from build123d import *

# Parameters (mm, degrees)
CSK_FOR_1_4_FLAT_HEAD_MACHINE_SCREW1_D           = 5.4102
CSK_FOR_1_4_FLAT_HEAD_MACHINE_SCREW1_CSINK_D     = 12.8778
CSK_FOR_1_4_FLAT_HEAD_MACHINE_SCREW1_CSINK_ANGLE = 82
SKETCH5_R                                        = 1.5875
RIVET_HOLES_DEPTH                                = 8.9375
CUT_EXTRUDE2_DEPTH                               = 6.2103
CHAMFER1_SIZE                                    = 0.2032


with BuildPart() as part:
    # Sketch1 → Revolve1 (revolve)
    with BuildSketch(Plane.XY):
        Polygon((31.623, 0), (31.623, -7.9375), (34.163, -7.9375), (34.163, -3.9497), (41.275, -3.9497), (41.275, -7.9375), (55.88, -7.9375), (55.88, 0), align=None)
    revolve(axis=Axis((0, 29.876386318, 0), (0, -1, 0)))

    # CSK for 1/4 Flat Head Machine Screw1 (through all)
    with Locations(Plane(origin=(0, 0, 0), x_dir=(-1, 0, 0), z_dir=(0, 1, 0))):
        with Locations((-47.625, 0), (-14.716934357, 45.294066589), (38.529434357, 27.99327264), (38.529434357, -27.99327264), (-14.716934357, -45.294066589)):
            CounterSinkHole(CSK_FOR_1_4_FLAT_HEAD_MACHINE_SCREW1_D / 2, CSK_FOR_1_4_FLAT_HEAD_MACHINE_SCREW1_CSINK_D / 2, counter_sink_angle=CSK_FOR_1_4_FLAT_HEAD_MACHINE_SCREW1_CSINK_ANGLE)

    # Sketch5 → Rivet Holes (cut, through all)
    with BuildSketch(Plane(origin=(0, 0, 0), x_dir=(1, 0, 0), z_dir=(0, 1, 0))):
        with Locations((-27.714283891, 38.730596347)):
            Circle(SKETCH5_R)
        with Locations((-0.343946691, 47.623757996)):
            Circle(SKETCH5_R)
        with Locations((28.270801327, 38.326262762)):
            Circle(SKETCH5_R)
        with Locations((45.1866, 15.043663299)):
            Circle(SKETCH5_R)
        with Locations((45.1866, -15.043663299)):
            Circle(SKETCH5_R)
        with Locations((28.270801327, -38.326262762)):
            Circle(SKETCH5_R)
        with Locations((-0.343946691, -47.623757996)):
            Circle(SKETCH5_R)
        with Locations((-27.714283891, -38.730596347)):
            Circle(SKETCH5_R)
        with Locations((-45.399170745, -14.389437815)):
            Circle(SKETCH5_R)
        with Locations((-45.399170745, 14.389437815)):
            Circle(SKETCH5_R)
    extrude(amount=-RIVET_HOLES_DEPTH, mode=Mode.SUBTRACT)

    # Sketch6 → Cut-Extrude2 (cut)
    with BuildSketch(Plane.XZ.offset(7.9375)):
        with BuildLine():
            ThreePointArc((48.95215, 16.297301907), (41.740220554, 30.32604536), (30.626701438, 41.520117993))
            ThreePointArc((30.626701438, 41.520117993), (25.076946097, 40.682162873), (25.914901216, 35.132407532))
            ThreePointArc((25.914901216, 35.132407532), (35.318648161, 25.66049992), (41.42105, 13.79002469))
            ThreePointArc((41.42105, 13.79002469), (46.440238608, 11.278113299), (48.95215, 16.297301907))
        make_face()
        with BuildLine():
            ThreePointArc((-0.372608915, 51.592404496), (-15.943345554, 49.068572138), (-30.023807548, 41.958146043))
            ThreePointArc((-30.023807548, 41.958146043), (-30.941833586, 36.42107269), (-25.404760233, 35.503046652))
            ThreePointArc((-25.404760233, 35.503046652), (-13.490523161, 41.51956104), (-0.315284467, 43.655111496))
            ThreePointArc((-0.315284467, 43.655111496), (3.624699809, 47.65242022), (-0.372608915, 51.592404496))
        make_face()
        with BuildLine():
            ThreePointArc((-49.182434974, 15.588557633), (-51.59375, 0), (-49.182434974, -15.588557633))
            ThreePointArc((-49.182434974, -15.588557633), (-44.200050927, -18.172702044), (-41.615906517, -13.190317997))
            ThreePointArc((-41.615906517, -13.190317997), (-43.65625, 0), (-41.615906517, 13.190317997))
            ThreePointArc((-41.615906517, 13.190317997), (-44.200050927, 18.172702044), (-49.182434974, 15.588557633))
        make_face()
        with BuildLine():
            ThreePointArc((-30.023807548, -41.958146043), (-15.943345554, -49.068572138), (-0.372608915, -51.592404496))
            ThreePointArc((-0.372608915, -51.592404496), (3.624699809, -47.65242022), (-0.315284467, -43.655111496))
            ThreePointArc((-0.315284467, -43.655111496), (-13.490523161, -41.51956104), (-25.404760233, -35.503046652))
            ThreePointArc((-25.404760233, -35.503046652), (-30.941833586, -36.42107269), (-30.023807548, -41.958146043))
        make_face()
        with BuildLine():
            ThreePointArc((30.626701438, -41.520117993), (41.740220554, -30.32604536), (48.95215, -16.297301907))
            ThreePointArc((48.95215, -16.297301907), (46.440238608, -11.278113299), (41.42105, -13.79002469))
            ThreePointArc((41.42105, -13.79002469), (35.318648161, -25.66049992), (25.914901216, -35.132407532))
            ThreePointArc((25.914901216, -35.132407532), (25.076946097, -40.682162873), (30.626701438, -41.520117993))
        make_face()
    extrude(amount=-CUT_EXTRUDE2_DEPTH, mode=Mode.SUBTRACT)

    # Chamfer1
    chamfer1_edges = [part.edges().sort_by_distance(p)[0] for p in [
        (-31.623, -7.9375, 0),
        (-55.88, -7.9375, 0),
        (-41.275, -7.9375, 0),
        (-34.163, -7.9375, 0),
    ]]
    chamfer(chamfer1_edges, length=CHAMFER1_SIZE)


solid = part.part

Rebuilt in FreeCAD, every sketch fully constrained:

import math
import FreeCAD as App
import Part
import Sketcher
from FreeCAD import Vector
Q = App.Units.Quantity


def edges_at(feature, points):
    """Names of the edges that pass closest to the given points."""
    edges = feature.Shape.Edges
    near = lambda p: min(range(len(edges)), key=lambda i: edges[i].distToShape(Part.Vertex(*p))[0])
    return sorted({f"Edge{near(p) + 1}" for p in points})


def add_polygon(sketch, points):
    """Adds a closed chain of lines whose ends are joined by coincident constraints."""
    first, n = sketch.GeometryCount, len(points)
    for a, b in zip(points, points[1:] + points[:1]):
        sketch.addGeometry(Part.LineSegment(App.Vector(*a, 0), App.Vector(*b, 0)), False)
    for i in range(n):
        sketch.addConstraint(Sketcher.Constraint("Coincident", first + i, 2, first + (i + 1) % n, 1))

doc = App.newDocument("Part")
body = doc.addObject("PartDesign::Body", "Body")

sketch1 = body.newObject("Sketcher::SketchObject", "Sketch")
sketch1.AttachmentSupport = (doc.getObject("XY_Plane"), [""])
sketch1.MapMode = "FlatFace"
add_polygon(sketch1, [(31.623, 0), (31.623, -7.9375), (34.163, -7.9375), (34.163, -3.9497), (41.275, -3.9497), (41.275, -7.9375), (55.88, -7.9375), (55.88, 0)])
sketch1.addConstraint(Sketcher.Constraint("Vertical", 0))
sketch1.addConstraint(Sketcher.Constraint("Horizontal", 1))
sketch1.addConstraint(Sketcher.Constraint("Vertical", 2))
sketch1.addConstraint(Sketcher.Constraint("Horizontal", 3))
sketch1.addConstraint(Sketcher.Constraint("Vertical", 4))
sketch1.addConstraint(Sketcher.Constraint("Horizontal", 5))
sketch1.addConstraint(Sketcher.Constraint("Vertical", 6))
sketch1.addConstraint(Sketcher.Constraint("Horizontal", 7))
sketch1.addConstraint(Sketcher.Constraint("PointOnObject", 6, 2, -1))
sketch1.addConstraint(Sketcher.Constraint("Horizontal", 1, 2, 4, 2))
sketch1.addConstraint(Sketcher.Constraint("DistanceX", 1, 1, 1, 2, Q("0.1 in")))
sketch1.addConstraint(Sketcher.Constraint("DistanceX", 3, 1, 3, 2, Q("0.28 in")))
sketch1.addConstraint(Sketcher.Constraint("DistanceX", -1, 1, 5, 2, Q("2.2 in")))
sketch1.addConstraint(Sketcher.Constraint("DistanceX", 5, 1, 5, 2, Q("0.575 in")))
sketch1.addConstraint(Sketcher.Constraint("DistanceY", 0, 2, 0, 1, Q("0.3125 in")))
sketch1.addConstraint(Sketcher.Constraint("DistanceY", 2, 1, 2, 2, Q("0.157 in")))
revolution = body.newObject("PartDesign::Revolution", "Revolution")
revolution.Profile = sketch1
revolution.ReferenceAxis = (sketch1, ["V_Axis"])
revolution.Angle = 360

sketch2 = body.newObject("Sketcher::SketchObject", "Sketch001")
sketch2.AttachmentSupport = (doc.getObject("XZ_Plane"), [""])
sketch2.MapMode = "FlatFace"
sketch2.addGeometry(Part.Circle(Vector(47.625, 0, 0), Vector(0, 0, 1), 2.7051), False)
sketch2.addGeometry(Part.Circle(Vector(14.716934, 45.294067, 0), Vector(0, 0, 1), 2.7051), False)
sketch2.addGeometry(Part.Circle(Vector(-38.529434, 27.993273, 0), Vector(0, 0, 1), 2.7051), False)
sketch2.addGeometry(Part.Circle(Vector(-38.529434, -27.993273, 0), Vector(0, 0, 1), 2.7051), False)
sketch2.addGeometry(Part.Circle(Vector(14.716934, -45.294067, 0), Vector(0, 0, 1), 2.7051), False)
sketch2.addConstraint(Sketcher.Constraint("Equal", 0, 1))
sketch2.addConstraint(Sketcher.Constraint("Equal", 1, 2))
sketch2.addConstraint(Sketcher.Constraint("Equal", 2, 3))
sketch2.addConstraint(Sketcher.Constraint("Equal", 3, 4))
sketch2.addConstraint(Sketcher.Constraint("Symmetric", 2, 3, 3, 3, -1))
sketch2.addConstraint(Sketcher.Constraint("Symmetric", 1, 3, 4, 3, -1))
sketch2.addConstraint(Sketcher.Constraint("PointOnObject", 0, 3, -1))
sketch2.addConstraint(Sketcher.Constraint("Diameter", 0, Q("0.213 in")))
sketch2.addConstraint(Sketcher.Constraint("DistanceX", -1, 1, 0, 3, Q("1.875 in")))
sketch2.addConstraint(Sketcher.Constraint("DistanceX", 2, 3, 1, 3, 53.246369))
sketch2.addConstraint(Sketcher.Constraint("DistanceY", 3, 3, 1, 3, 73.287339))
sketch2.addConstraint(Sketcher.Constraint("DistanceX", -1, 1, 1, 3, 14.716934))
sketch2.addConstraint(Sketcher.Constraint("DistanceY", -1, 1, 1, 3, 45.294067))
doc.recompute()
hole = body.newObject("PartDesign::Hole", "Hole")
hole.Profile = sketch2
hole.ThreadType = "None"
hole.Diameter = Q("0.213 in")
hole.DepthType = "ThroughAll"
hole.HoleCutType = "Countersink"
hole.HoleCutDiameter = Q("0.507 in")
hole.HoleCutCountersinkAngle = 82
hole.Reversed = True

sketch3 = body.newObject("Sketcher::SketchObject", "Sketch002")
sketch3.AttachmentSupport = (doc.getObject("XZ_Plane"), [""])
sketch3.MapMode = "FlatFace"
sketch3.addGeometry(Part.Circle(Vector(-27.714284, -38.730596, 0), Vector(0, 0, 1), 1.5875), False)
sketch3.addGeometry(Part.Circle(Vector(-0.343947, -47.623758, 0), Vector(0, 0, 1), 1.5875), False)
sketch3.addGeometry(Part.Circle(Vector(28.270801, -38.326263, 0), Vector(0, 0, 1), 1.5875), False)
sketch3.addGeometry(Part.Circle(Vector(45.1866, -15.043663, 0), Vector(0, 0, 1), 1.5875), False)
sketch3.addGeometry(Part.Circle(Vector(45.1866, 15.043663, 0), Vector(0, 0, 1), 1.5875), False)
sketch3.addGeometry(Part.Circle(Vector(28.270801, 38.326263, 0), Vector(0, 0, 1), 1.5875), False)
sketch3.addGeometry(Part.Circle(Vector(-0.343947, 47.623758, 0), Vector(0, 0, 1), 1.5875), False)
sketch3.addGeometry(Part.Circle(Vector(-27.714284, 38.730596, 0), Vector(0, 0, 1), 1.5875), False)
sketch3.addGeometry(Part.Circle(Vector(-45.399171, 14.389438, 0), Vector(0, 0, 1), 1.5875), False)
sketch3.addGeometry(Part.Circle(Vector(-45.399171, -14.389438, 0), Vector(0, 0, 1), 1.5875), False)
sketch3.addConstraint(Sketcher.Constraint("Equal", 0, 1))
sketch3.addConstraint(Sketcher.Constraint("Equal", 1, 2))
sketch3.addConstraint(Sketcher.Constraint("Equal", 2, 3))
sketch3.addConstraint(Sketcher.Constraint("Equal", 3, 4))
sketch3.addConstraint(Sketcher.Constraint("Equal", 4, 5))
sketch3.addConstraint(Sketcher.Constraint("Equal", 5, 6))
sketch3.addConstraint(Sketcher.Constraint("Equal", 6, 7))
sketch3.addConstraint(Sketcher.Constraint("Equal", 7, 8))
sketch3.addConstraint(Sketcher.Constraint("Equal", 8, 9))
sketch3.addConstraint(Sketcher.Constraint("Symmetric", 3, 3, 4, 3, -1))
sketch3.addConstraint(Sketcher.Constraint("Symmetric", 2, 3, 5, 3, -1))
sketch3.addConstraint(Sketcher.Constraint("Symmetric", 1, 3, 6, 3, -1))
sketch3.addConstraint(Sketcher.Constraint("Symmetric", 0, 3, 7, 3, -1))
sketch3.addConstraint(Sketcher.Constraint("Symmetric", 8, 3, 9, 3, -1))
sketch3.addConstraint(Sketcher.Constraint("Diameter", 0, Q("0.125 in")))
sketch3.addConstraint(Sketcher.Constraint("DistanceX", -1, 1, 3, 3, Q("1.779 in")))
sketch3.addConstraint(Sketcher.Constraint("DistanceX", -1, 1, 2, 3, 28.270801))
sketch3.addConstraint(Sketcher.Constraint("DistanceY", 2, 3, 3, 3, 23.282599))
sketch3.addConstraint(Sketcher.Constraint("DistanceX", 8, 3, -1, 1, 45.399171))
sketch3.addConstraint(Sketcher.Constraint("DistanceY", 1, 3, 0, 3, 8.893162))
sketch3.addConstraint(Sketcher.Constraint("DistanceX", 1, 3, 2, 3, 28.614748))
sketch3.addConstraint(Sketcher.Constraint("DistanceY", 1, 3, 4, 3, 62.667421))
sketch3.addConstraint(Sketcher.Constraint("DistanceY", 8, 3, 7, 3, 24.341159))
sketch3.addConstraint(Sketcher.Constraint("DistanceX", 0, 3, -1, 1, 27.714284))
sketch3.addConstraint(Sketcher.Constraint("DistanceY", 0, 3, -1, 1, 38.730596))
pocket1 = body.newObject("PartDesign::Pocket", "Pocket")
pocket1.Profile = sketch3
pocket1.Type = "ThroughAll"
pocket1.Reversed = True

sketch4 = body.newObject("Sketcher::SketchObject", "Sketch003")
sketch4.AttachmentSupport = (doc.getObject("XZ_Plane"), [""])
sketch4.MapMode = "FlatFace"
sketch4.AttachmentOffset = App.Placement(Vector(0, 0, 0.3125 * 25.4), App.Rotation())
sketch4.addGeometry(Part.ArcOfCircle(Part.Circle(Vector(0, 0, 0), Vector(0, 0, 1), 51.59375), math.radians(18.413792), math.radians(53.586208)), False)
sketch4.addGeometry(Part.ArcOfCircle(Part.Circle(Vector(28.270801, 38.326263, 0), Vector(0, 0, 1), 3.96875), math.radians(53.586208), math.radians(233.586208)), False)
sketch4.addGeometry(Part.ArcOfCircle(Part.Circle(Vector(0, 0, 0), Vector(0, 0, 1), 43.65625), math.radians(18.413792), math.radians(53.586208)), False)
sketch4.addGeometry(Part.ArcOfCircle(Part.Circle(Vector(45.1866, 15.043663, 0), Vector(0, 0, 1), 3.96875), math.radians(-161.586208), math.radians(18.413792)), False)
sketch4.addGeometry(Part.ArcOfCircle(Part.Circle(Vector(0, 0, 0), Vector(0, 0, 1), 51.59375), math.radians(90.413792), math.radians(125.586208)), False)
sketch4.addGeometry(Part.ArcOfCircle(Part.Circle(Vector(-27.714284, 38.730596, 0), Vector(0, 0, 1), 3.96875), math.radians(125.586208), math.radians(305.586208)), False)
sketch4.addGeometry(Part.ArcOfCircle(Part.Circle(Vector(0, 0, 0), Vector(0, 0, 1), 43.65625), math.radians(90.413792), math.radians(125.586208)), False)
sketch4.addGeometry(Part.ArcOfCircle(Part.Circle(Vector(-0.343947, 47.623758, 0), Vector(0, 0, 1), 3.96875), math.radians(-89.586208), math.radians(90.413792)), False)
sketch4.addGeometry(Part.ArcOfCircle(Part.Circle(Vector(0, 0, 0), Vector(0, 0, 1), 51.59375), math.radians(162.413792), math.radians(197.586208)), False)
sketch4.addGeometry(Part.ArcOfCircle(Part.Circle(Vector(-45.399171, -14.389438, 0), Vector(0, 0, 1), 3.96875), math.radians(-162.413792), math.radians(17.586208)), False)
sketch4.addGeometry(Part.ArcOfCircle(Part.Circle(Vector(0, 0, 0), Vector(0, 0, 1), 43.65625), math.radians(162.413792), math.radians(197.586208)), False)
sketch4.addGeometry(Part.ArcOfCircle(Part.Circle(Vector(-45.399171, 14.389438, 0), Vector(0, 0, 1), 3.96875), math.radians(-17.586208), math.radians(162.413792)), False)
sketch4.addGeometry(Part.ArcOfCircle(Part.Circle(Vector(0, 0, 0), Vector(0, 0, 1), 51.59375), math.radians(-125.586208), math.radians(-90.413792)), False)
sketch4.addGeometry(Part.ArcOfCircle(Part.Circle(Vector(-0.343947, -47.623758, 0), Vector(0, 0, 1), 3.96875), math.radians(-90.413792), math.radians(89.586208)), False)
sketch4.addGeometry(Part.ArcOfCircle(Part.Circle(Vector(0, 0, 0), Vector(0, 0, 1), 43.65625), math.radians(-125.586208), math.radians(-90.413792)), False)
sketch4.addGeometry(Part.ArcOfCircle(Part.Circle(Vector(-27.714284, -38.730596, 0), Vector(0, 0, 1), 3.96875), math.radians(54.413792), math.radians(234.413792)), False)
sketch4.addGeometry(Part.ArcOfCircle(Part.Circle(Vector(0, 0, 0), Vector(0, 0, 1), 51.59375), math.radians(-53.586208), math.radians(-18.413792)), False)
sketch4.addGeometry(Part.ArcOfCircle(Part.Circle(Vector(45.1866, -15.043663, 0), Vector(0, 0, 1), 3.96875), math.radians(-18.413792), math.radians(161.586208)), False)
sketch4.addGeometry(Part.ArcOfCircle(Part.Circle(Vector(0, 0, 0), Vector(0, 0, 1), 43.65625), math.radians(-53.586208), math.radians(-18.413792)), False)
sketch4.addGeometry(Part.ArcOfCircle(Part.Circle(Vector(28.270801, -38.326263, 0), Vector(0, 0, 1), 3.96875), math.radians(126.413792), math.radians(306.413792)), False)
sketch4.addConstraint(Sketcher.Constraint("Tangent", 0, 2, 1, 1))
sketch4.addConstraint(Sketcher.Constraint("Tangent", 1, 2, 2, 2))
sketch4.addConstraint(Sketcher.Constraint("Tangent", 2, 1, 3, 1))
sketch4.addConstraint(Sketcher.Constraint("Tangent", 3, 2, 0, 1))
sketch4.addConstraint(Sketcher.Constraint("Tangent", 4, 2, 5, 1))
sketch4.addConstraint(Sketcher.Constraint("Tangent", 5, 2, 6, 2))
sketch4.addConstraint(Sketcher.Constraint("Tangent", 6, 1, 7, 1))
sketch4.addConstraint(Sketcher.Constraint("Tangent", 7, 2, 4, 1))
sketch4.addConstraint(Sketcher.Constraint("Tangent", 8, 2, 9, 1))
sketch4.addConstraint(Sketcher.Constraint("Tangent", 9, 2, 10, 2))
sketch4.addConstraint(Sketcher.Constraint("Tangent", 10, 1, 11, 1))
sketch4.addConstraint(Sketcher.Constraint("Tangent", 11, 2, 8, 1))
sketch4.addConstraint(Sketcher.Constraint("Tangent", 12, 2, 13, 1))
sketch4.addConstraint(Sketcher.Constraint("Tangent", 13, 2, 14, 2))
sketch4.addConstraint(Sketcher.Constraint("Tangent", 14, 1, 15, 1))
sketch4.addConstraint(Sketcher.Constraint("Tangent", 15, 2, 12, 1))
sketch4.addConstraint(Sketcher.Constraint("Tangent", 16, 2, 17, 1))
sketch4.addConstraint(Sketcher.Constraint("Tangent", 17, 2, 18, 2))
sketch4.addConstraint(Sketcher.Constraint("Tangent", 18, 1, 19, 1))
sketch4.addConstraint(Sketcher.Constraint("Tangent", 19, 2, 16, 1))
sketch4.addConstraint(Sketcher.Constraint("Coincident", 0, 3, -1, 1))
sketch4.addConstraint(Sketcher.Constraint("Coincident", 2, 3, -1, 1))
sketch4.addConstraint(Sketcher.Constraint("Coincident", 4, 3, -1, 1))
sketch4.addConstraint(Sketcher.Constraint("Coincident", 6, 3, -1, 1))
sketch4.addConstraint(Sketcher.Constraint("Coincident", 8, 3, -1, 1))
sketch4.addConstraint(Sketcher.Constraint("Coincident", 10, 3, -1, 1))
sketch4.addConstraint(Sketcher.Constraint("Coincident", 12, 3, -1, 1))
sketch4.addConstraint(Sketcher.Constraint("Coincident", 14, 3, -1, 1))
sketch4.addConstraint(Sketcher.Constraint("Coincident", 16, 3, -1, 1))
sketch4.addConstraint(Sketcher.Constraint("Coincident", 18, 3, -1, 1))
sketch4.addConstraint(Sketcher.Constraint("Equal", 0, 4))
sketch4.addConstraint(Sketcher.Constraint("Equal", 3, 5))
sketch4.addConstraint(Sketcher.Constraint("Equal", 4, 8))
sketch4.addConstraint(Sketcher.Constraint("Equal", 7, 9))
sketch4.addConstraint(Sketcher.Constraint("Equal", 8, 12))
sketch4.addConstraint(Sketcher.Constraint("Equal", 11, 13))
sketch4.addConstraint(Sketcher.Constraint("Equal", 12, 16))
sketch4.addConstraint(Sketcher.Constraint("Equal", 15, 17))
sketch4.addConstraint(Sketcher.Constraint("Vertical", 9, 3, 11, 3))
sketch4.addConstraint(Sketcher.Constraint("Vertical", 7, 3, 13, 3))
sketch4.addConstraint(Sketcher.Constraint("Vertical", 5, 3, 15, 3))
sketch4.addConstraint(Sketcher.Constraint("Vertical", 3, 3, 17, 3))
sketch4.addConstraint(Sketcher.Constraint("Vertical", 1, 3, 19, 3))
sketch4.addConstraint(Sketcher.Constraint("Radius", 0, Q("2.03125 in")))
sketch4.addConstraint(Sketcher.Constraint("Radius", 1, Q("0.15625 in")))
sketch4.addConstraint(Sketcher.Constraint("DistanceX", -1, 1, 3, 3, Q("1.779 in")))
sketch4.addConstraint(Sketcher.Constraint("DistanceX", -1, 1, 1, 3, 28.270801))
sketch4.addConstraint(Sketcher.Constraint("DistanceY", 5, 2, 4, 2, 6.455099))
sketch4.addConstraint(Sketcher.Constraint("DistanceX", 5, 3, 6, 1, 27.398999))
sketch4.addConstraint(Sketcher.Constraint("DistanceX", 9, 2, 15, 2, 11.592099))
pocket2 = body.newObject("PartDesign::Pocket", "Pocket001")
pocket2.Profile = sketch4
pocket2.Length = Q("0.2445 in")
doc.recompute()

chamfer = body.newObject("PartDesign::Chamfer", "Chamfer")
chamfer.Base = (pocket2, edges_at(pocket2, [
    (-31.623, -7.938, 0),
    (-55.88, -7.938, 0),
    (-41.275, -7.938, 0),
    (-34.163, -7.938, 0),
]))
chamfer.Size = Q("0.008 in")

doc.recompute()
